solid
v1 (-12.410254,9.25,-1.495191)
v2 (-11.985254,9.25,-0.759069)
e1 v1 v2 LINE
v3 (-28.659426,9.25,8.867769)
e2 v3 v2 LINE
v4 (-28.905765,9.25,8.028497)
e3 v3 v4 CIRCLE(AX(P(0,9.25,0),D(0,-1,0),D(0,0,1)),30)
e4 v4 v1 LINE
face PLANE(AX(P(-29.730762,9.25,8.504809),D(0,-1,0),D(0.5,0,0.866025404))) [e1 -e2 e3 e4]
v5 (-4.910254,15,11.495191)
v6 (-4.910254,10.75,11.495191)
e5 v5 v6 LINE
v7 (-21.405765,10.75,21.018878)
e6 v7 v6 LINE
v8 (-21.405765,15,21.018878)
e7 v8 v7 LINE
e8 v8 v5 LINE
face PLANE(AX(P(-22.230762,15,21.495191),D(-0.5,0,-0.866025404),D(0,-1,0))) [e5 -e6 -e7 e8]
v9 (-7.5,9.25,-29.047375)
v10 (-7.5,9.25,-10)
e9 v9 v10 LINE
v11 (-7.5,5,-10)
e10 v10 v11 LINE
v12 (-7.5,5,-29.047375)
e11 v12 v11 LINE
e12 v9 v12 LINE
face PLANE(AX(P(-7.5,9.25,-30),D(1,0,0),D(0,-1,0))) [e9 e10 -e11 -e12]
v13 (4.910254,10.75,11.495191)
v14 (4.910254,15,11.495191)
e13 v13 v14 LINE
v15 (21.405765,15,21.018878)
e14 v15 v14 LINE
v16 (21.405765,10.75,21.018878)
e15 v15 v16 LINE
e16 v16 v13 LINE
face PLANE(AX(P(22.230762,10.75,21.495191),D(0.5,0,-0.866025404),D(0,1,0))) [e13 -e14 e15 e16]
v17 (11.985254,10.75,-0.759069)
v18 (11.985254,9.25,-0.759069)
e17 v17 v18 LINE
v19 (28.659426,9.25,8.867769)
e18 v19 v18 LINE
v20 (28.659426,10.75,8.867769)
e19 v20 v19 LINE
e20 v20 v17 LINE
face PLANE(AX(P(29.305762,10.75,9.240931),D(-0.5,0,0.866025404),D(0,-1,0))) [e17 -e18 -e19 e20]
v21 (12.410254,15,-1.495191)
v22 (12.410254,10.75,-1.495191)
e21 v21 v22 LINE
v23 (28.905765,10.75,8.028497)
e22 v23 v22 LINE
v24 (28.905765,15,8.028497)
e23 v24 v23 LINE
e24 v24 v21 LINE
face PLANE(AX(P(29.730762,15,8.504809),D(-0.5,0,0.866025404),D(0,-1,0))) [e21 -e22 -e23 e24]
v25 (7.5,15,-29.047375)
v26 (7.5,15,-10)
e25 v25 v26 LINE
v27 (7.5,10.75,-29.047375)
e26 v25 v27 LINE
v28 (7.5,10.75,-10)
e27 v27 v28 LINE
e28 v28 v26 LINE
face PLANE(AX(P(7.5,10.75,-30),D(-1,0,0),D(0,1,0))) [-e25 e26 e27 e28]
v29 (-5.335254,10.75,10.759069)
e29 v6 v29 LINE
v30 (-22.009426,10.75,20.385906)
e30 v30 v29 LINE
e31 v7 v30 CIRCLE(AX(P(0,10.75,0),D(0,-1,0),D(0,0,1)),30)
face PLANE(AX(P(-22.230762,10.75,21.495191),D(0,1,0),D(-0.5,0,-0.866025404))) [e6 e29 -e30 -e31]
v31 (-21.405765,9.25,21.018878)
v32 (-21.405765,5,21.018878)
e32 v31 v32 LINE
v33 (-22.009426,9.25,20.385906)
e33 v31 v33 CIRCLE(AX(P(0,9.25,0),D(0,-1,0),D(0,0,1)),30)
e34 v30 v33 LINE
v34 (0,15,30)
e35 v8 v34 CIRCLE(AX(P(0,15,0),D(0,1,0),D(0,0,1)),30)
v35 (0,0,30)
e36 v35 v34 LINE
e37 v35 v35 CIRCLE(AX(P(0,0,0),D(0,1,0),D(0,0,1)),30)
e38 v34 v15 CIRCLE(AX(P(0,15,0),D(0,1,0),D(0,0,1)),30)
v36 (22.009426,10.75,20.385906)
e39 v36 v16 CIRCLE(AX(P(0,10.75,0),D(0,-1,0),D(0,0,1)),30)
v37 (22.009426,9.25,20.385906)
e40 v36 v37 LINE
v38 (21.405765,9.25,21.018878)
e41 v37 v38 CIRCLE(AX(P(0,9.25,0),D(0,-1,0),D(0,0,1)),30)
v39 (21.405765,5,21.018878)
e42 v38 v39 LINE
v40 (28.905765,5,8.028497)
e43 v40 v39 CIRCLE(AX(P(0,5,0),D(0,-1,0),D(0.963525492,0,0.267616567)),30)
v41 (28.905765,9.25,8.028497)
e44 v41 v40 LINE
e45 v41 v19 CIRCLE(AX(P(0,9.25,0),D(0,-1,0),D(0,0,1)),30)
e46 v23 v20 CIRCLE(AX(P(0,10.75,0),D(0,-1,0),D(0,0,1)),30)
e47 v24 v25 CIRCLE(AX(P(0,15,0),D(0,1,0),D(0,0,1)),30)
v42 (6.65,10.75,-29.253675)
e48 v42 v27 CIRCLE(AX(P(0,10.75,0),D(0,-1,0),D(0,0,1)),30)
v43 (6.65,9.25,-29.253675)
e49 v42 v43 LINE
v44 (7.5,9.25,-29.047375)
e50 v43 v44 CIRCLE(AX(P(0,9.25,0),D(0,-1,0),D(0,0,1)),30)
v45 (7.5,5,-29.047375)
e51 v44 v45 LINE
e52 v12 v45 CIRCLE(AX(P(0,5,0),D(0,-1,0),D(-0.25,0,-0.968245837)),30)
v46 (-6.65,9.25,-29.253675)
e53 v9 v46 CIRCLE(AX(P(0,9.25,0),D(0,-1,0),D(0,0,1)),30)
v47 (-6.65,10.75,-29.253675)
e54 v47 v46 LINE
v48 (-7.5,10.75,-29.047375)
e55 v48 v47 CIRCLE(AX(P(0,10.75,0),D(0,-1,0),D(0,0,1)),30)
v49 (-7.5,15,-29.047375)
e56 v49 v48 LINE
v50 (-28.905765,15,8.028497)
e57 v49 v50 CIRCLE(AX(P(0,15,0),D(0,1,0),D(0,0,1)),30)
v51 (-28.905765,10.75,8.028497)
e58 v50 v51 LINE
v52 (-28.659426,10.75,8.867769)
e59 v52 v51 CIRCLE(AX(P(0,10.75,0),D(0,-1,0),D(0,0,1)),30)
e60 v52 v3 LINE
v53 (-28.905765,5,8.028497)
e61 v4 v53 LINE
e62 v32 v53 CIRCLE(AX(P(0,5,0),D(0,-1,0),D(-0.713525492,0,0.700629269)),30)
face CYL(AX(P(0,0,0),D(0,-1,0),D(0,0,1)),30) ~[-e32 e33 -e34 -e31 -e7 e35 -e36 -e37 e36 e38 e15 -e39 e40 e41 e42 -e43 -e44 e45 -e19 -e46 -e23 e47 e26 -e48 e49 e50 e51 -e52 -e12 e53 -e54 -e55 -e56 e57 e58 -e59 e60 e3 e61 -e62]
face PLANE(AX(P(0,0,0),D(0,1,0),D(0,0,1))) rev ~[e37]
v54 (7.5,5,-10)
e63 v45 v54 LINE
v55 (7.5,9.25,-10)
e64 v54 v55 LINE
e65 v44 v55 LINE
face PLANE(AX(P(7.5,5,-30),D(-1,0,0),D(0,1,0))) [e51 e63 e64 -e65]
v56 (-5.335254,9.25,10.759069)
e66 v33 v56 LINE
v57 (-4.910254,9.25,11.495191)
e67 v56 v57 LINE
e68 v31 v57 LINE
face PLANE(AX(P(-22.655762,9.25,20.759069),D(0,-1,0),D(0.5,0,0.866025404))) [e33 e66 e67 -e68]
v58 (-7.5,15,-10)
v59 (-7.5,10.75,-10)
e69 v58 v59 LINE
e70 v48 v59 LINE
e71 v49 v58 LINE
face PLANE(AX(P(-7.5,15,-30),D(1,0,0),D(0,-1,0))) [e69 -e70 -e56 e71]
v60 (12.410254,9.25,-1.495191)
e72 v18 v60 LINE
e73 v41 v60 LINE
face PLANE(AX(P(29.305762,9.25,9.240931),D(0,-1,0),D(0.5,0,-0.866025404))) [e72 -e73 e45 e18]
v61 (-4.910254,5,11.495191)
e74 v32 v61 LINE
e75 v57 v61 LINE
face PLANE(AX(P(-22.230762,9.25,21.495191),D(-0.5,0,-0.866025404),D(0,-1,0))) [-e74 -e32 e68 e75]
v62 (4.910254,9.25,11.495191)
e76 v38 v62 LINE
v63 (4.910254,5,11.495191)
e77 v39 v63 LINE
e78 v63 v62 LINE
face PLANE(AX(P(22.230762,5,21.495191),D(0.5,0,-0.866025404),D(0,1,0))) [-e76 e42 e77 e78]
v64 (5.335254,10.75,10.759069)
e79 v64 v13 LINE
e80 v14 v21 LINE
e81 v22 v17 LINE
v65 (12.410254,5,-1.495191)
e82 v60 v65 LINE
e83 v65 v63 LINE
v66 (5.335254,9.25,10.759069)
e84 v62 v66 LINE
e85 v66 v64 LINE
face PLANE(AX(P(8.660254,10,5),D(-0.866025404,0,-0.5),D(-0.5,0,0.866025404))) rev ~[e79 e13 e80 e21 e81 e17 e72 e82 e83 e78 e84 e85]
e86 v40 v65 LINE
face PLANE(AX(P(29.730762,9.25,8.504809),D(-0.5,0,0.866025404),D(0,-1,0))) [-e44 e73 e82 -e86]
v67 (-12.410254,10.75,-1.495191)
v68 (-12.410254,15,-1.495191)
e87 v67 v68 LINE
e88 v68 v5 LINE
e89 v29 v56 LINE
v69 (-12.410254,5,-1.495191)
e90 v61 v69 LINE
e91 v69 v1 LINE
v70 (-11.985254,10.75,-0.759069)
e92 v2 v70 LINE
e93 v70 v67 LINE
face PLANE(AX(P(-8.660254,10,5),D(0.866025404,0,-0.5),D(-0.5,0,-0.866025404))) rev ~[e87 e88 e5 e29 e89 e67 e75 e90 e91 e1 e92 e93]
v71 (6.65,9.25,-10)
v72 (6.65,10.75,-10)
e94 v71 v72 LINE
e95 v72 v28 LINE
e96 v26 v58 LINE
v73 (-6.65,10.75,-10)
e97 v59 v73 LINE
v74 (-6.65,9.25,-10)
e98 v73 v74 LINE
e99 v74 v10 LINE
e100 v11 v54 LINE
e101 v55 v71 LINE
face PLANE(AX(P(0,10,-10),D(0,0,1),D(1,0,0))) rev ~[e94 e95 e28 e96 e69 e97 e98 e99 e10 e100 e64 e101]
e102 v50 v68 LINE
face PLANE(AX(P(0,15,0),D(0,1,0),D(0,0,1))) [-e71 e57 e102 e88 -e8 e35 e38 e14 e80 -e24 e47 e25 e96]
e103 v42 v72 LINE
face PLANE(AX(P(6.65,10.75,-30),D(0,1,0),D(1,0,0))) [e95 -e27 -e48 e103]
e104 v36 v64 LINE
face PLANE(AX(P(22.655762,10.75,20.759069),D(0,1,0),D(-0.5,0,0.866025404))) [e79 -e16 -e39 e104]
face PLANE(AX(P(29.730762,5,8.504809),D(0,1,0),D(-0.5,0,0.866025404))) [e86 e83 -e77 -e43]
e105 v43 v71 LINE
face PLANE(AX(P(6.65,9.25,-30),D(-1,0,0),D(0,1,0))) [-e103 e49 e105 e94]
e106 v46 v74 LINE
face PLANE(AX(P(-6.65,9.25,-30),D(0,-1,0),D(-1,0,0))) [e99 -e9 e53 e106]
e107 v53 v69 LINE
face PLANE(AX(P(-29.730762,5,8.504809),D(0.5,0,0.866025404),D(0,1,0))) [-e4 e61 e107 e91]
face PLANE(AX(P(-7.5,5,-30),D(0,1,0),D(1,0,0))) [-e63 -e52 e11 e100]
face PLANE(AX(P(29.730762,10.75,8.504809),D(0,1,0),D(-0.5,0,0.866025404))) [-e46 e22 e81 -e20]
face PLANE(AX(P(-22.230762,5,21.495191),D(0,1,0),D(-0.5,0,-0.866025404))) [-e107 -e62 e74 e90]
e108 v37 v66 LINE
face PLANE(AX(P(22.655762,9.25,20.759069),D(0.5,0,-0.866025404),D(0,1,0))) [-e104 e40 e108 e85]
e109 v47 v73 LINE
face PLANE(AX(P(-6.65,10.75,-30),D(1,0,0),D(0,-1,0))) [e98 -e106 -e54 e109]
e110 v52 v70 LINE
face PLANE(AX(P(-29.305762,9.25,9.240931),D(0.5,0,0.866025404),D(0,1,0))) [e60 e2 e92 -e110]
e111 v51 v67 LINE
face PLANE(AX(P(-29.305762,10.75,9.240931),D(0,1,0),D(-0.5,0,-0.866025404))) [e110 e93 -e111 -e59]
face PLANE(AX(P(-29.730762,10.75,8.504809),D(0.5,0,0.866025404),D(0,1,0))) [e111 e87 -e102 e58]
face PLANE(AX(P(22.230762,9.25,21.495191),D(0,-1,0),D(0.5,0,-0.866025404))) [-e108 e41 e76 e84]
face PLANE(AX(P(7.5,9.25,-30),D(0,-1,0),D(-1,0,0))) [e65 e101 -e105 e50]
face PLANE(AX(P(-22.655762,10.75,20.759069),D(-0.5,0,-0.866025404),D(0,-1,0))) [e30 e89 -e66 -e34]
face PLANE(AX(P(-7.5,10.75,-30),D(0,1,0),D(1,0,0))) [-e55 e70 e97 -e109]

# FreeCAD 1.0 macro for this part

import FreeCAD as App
import Part
import Sketcher
Q = App.Units.Quantity

doc = App.newDocument("Part")
params = doc.addObject("Spreadsheet::Sheet", "Params")
for row, (alias, value) in enumerate([
    ("sketch1_diameter", "60 mm"),
    ("pad1_length", "15 mm"),
    ("sketch2_width", "15 mm"),
    ("sketch2_height", "1.5 mm"),
    ("sketch2_width2", "0.85 mm"),
    ("pocket1_length", "20 mm"),
], start=1):
    params.set(f"A{row}", alias)
    params.set(f"B{row}", "=" + value)
    params.setAlias(f"B{row}", alias)

body = doc.addObject("PartDesign::Body", "Body")

sketch1 = doc.addObject("Sketcher::SketchObject", "Sketch")
body.addObject(sketch1)
sketch1.AttachmentSupport = (doc.XZ_Plane, [""])
sketch1.MapMode = "FlatFace"
sketch1.addGeometry(Part.Circle(App.Vector(0, 0, 0), App.Vector(0, 0, 1), 30), False)
sketch1.addConstraint([
    Sketcher.Constraint("Coincident", 0, 3, -1, 1),
    Sketcher.Constraint("Diameter", 0, Q("60 mm")),
])
sketch1.setExpression("Constraints[1]", "Params.sketch1_diameter")
pad1 = doc.addObject("PartDesign::Pad", "Pad")
body.addObject(pad1)
pad1.Profile = sketch1
pad1.setExpression("Length", "Params.pad1_length")
pad1.Reversed = True

sketch2 = doc.addObject("Sketcher::SketchObject", "Sketch001")
body.addObject(sketch2)
sketch2.AttachmentSupport = (doc.XY_Plane, [""])
sketch2.MapMode = "FlatFace"
sketch2.AttachmentOffset = App.Placement(App.Vector(0, 0, -30), App.Rotation())
sketch2.addGeometry([
    Part.LineSegment(App.Vector(7.5, 9.25, 0), App.Vector(7.5, 5, 0)),
    Part.LineSegment(App.Vector(7.5, 5, 0), App.Vector(-7.5, 5, 0)),
    Part.LineSegment(App.Vector(-7.5, 5, 0), App.Vector(-7.5, 9.25, 0)),
    Part.LineSegment(App.Vector(-7.5, 9.25, 0), App.Vector(-6.65, 9.25, 0)),
    Part.LineSegment(App.Vector(-6.65, 9.25, 0), App.Vector(-6.65, 10.75, 0)),
    Part.LineSegment(App.Vector(-6.65, 10.75, 0), App.Vector(-7.5, 10.75, 0)),
    Part.LineSegment(App.Vector(-7.5, 10.75, 0), App.Vector(-7.5, 15, 0)),
    Part.LineSegment(App.Vector(-7.5, 15, 0), App.Vector(7.5, 15, 0)),
    Part.LineSegment(App.Vector(7.5, 15, 0), App.Vector(7.5, 10.75, 0)),
    Part.LineSegment(App.Vector(7.5, 10.75, 0), App.Vector(6.65, 10.75, 0)),
    Part.LineSegment(App.Vector(6.65, 10.75, 0), App.Vector(6.65, 9.25, 0)),
    Part.LineSegment(App.Vector(6.65, 9.25, 0), App.Vector(7.5, 9.25, 0)),
], False)
sketch2.addConstraint([
    Sketcher.Constraint("Coincident", 0, 2, 1, 1),
    Sketcher.Constraint("Coincident", 1, 2, 2, 1),
    Sketcher.Constraint("Coincident", 2, 2, 3, 1),
    Sketcher.Constraint("Coincident", 3, 2, 4, 1),
    Sketcher.Constraint("Coincident", 4, 2, 5, 1),
    Sketcher.Constraint("Coincident", 5, 2, 6, 1),
    Sketcher.Constraint("Coincident", 6, 2, 7, 1),
    Sketcher.Constraint("Coincident", 7, 2, 8, 1),
    Sketcher.Constraint("Coincident", 8, 2, 9, 1),
    Sketcher.Constraint("Coincident", 9, 2, 10, 1),
    Sketcher.Constraint("Coincident", 10, 2, 11, 1),
    Sketcher.Constraint("Coincident", 11, 2, 0, 1),
    Sketcher.Constraint("Vertical", 0),
    Sketcher.Constraint("Horizontal", 1),
    Sketcher.Constraint("Vertical", 2),
    Sketcher.Constraint("Horizontal", 3),
    Sketcher.Constraint("Vertical", 4),
    Sketcher.Constraint("Horizontal", 5),
    Sketcher.Constraint("Vertical", 6),
    Sketcher.Constraint("Horizontal", 7),
    Sketcher.Constraint("Vertical", 8),
    Sketcher.Constraint("Horizontal", 9),
    Sketcher.Constraint("Vertical", 10),
    Sketcher.Constraint("Horizontal", 11),
    Sketcher.Constraint("Symmetric", 5, 2, 8, 2, -2),
    Sketcher.Constraint("Symmetric", 3, 2, 10, 2, -2),
    Sketcher.Constraint("Vertical", 2, 2, 5, 2),
    Sketcher.Constraint("Vertical", 0, 2, 7, 2),
    Sketcher.Constraint("Equal", 2, 6),
    Sketcher.Constraint("DistanceX", 1, 2, 1, 1, Q("15 mm")),
    Sketcher.Constraint("DistanceY", 4, 1, 4, 2, Q("1.5 mm")),
    Sketcher.Constraint("DistanceY", -1, 1, 0, 2, Q("5 mm")),
    Sketcher.Constraint("DistanceY", -1, 1, 6, 2, Q("15 mm")),
    Sketcher.Constraint("DistanceX", 3, 1, 3, 2, Q("0.85 mm")),
])
sketch2.setExpression("Constraints[29]", "Params.sketch2_width")
sketch2.setExpression("Constraints[30]", "Params.sketch2_height")
sketch2.setExpression("Constraints[33]", "Params.sketch2_width2")
pocket1 = doc.addObject("PartDesign::Pocket", "Pocket")
body.addObject(pocket1)
pocket1.Profile = sketch2
pocket1.setExpression("Length", "Params.pocket1_length")
pocket1.Reversed = True
doc.recompute()

polarpattern = doc.addObject("PartDesign::PolarPattern", "PolarPattern")
body.addObject(polarpattern)
polarpattern.Originals = [pocket1]
polarpattern.Axis = (doc.Y_Axis, [""])
polarpattern.Angle = 360
polarpattern.Occurrences = 3
body.Tip = polarpattern

doc.recompute()
